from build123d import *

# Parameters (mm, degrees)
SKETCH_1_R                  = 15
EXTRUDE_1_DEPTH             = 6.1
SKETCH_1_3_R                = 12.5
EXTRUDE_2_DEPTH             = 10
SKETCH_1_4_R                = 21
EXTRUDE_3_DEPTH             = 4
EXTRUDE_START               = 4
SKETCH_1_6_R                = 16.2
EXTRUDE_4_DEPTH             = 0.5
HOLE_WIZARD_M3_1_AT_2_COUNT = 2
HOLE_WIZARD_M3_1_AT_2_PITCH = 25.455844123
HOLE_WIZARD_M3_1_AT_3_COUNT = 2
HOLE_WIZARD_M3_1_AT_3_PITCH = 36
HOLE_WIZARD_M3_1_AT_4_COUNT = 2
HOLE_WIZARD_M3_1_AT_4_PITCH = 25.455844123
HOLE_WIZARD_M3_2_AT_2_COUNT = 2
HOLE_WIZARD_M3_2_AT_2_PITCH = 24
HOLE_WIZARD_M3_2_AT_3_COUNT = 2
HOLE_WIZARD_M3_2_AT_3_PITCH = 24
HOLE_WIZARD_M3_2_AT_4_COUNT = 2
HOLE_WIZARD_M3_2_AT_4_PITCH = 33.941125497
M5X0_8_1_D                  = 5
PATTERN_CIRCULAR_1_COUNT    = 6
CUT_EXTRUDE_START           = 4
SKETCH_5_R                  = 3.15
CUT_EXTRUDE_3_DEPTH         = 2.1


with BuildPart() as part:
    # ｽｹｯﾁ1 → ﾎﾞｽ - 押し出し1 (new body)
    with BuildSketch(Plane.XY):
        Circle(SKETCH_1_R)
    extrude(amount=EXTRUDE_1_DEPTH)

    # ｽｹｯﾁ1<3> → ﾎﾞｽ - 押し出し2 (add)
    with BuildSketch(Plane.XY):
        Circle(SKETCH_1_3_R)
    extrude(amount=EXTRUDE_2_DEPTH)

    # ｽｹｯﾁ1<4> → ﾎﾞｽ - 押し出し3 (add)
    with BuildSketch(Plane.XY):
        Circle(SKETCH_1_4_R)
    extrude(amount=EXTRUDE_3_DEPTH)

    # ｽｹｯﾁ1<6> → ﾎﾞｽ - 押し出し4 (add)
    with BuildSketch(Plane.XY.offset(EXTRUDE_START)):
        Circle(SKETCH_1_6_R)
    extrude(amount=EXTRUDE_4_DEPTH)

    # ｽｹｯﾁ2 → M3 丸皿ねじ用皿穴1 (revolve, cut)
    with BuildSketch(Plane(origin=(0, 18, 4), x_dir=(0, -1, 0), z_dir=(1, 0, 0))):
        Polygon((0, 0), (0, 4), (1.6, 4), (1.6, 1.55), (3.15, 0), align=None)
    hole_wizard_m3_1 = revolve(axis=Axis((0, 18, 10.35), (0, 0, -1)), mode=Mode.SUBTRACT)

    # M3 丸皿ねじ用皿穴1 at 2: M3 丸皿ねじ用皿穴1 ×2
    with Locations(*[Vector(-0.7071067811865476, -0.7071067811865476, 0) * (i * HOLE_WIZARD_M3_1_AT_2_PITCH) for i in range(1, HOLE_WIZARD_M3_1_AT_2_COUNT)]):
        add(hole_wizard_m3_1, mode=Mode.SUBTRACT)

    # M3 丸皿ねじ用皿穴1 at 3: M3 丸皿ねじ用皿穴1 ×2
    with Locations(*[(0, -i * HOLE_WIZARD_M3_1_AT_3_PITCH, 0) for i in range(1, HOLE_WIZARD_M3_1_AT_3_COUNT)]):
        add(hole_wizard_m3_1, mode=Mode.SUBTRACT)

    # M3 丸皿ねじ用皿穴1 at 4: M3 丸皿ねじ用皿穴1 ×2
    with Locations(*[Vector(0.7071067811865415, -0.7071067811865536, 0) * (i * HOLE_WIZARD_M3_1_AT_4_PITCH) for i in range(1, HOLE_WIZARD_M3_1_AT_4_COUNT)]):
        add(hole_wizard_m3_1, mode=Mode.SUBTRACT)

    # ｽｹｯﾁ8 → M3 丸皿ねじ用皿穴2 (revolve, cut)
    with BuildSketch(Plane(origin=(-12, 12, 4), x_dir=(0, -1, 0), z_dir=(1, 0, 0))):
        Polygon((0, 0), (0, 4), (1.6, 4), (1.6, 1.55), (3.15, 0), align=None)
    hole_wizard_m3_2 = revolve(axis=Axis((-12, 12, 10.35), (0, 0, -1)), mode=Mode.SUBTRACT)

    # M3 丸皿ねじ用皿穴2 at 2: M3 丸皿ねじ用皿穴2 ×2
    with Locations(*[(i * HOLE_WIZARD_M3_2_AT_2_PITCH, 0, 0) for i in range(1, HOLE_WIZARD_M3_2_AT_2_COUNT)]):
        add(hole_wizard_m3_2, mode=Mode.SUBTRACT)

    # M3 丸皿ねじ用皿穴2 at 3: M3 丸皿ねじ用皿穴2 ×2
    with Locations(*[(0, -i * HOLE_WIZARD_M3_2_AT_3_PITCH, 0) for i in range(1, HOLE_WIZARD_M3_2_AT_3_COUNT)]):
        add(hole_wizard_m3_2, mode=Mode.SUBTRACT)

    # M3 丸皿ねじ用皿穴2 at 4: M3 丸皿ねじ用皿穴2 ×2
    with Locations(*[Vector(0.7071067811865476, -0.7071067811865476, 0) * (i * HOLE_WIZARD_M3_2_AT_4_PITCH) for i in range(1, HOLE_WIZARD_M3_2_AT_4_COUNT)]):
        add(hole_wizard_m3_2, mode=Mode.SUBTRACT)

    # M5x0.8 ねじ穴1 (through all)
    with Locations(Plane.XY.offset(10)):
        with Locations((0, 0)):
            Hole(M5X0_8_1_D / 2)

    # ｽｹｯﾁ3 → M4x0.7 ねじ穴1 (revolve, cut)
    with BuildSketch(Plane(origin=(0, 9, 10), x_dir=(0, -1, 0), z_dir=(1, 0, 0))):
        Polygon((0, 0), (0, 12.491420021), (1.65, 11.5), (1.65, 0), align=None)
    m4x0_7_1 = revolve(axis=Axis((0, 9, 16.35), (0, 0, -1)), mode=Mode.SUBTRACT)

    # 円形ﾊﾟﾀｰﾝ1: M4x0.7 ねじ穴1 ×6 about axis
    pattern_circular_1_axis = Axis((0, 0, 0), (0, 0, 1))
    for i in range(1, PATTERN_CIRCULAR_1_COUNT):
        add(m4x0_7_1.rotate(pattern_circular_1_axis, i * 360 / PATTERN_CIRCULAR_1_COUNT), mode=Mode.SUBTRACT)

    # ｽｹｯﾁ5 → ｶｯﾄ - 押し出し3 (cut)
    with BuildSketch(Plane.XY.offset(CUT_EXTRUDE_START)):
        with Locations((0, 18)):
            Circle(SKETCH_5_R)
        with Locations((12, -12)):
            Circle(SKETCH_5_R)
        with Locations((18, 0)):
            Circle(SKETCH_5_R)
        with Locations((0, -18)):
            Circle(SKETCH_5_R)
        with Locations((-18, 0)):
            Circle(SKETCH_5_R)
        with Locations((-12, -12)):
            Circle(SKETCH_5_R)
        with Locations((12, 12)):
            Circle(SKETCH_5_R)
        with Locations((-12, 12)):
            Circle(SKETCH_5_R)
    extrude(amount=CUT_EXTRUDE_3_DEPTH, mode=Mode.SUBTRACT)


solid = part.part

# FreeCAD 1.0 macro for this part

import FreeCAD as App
import Part
import Sketcher
from FreeCAD import Vector
Q = App.Units.Quantity

doc = App.newDocument("Part")
body = doc.addObject("PartDesign::Body", "Body")

# Sketch on XY plane
sketch1 = doc.addObject("Sketcher::SketchObject", "Sketch")
body.addObject(sketch1)
sketch1.AttachmentSupport = (doc.XY_Plane, [""])
sketch1.MapMode = "FlatFace"
sketch1.addGeometry(Part.Circle(Vector(0, 0, 0), Vector(0, 0, 1), 15), False)
sketch1.addConstraint([
    Sketcher.Constraint("Coincident", 0, 3, -1, 1),
    Sketcher.Constraint("Diameter", 0, Q("30 mm")),
])
pad1 = doc.addObject("PartDesign::Pad", "Pad")
body.addObject(pad1)
pad1.Profile = sketch1
pad1.Length = 6.1

# Sketch on XY plane
sketch2 = doc.addObject("Sketcher::SketchObject", "Sketch001")
body.addObject(sketch2)
sketch2.AttachmentSupport = (doc.XY_Plane, [""])
sketch2.MapMode = "FlatFace"
sketch2.addGeometry(Part.Circle(Vector(0, 0, 0), Vector(0, 0, 1), 12), False)
sketch2.addConstraint([
    Sketcher.Constraint("Coincident", 0, 3, -1, 1),
    Sketcher.Constraint("Diameter", 0, Q("25 mm")),
])
pad2 = doc.addObject("PartDesign::Pad", "Pad001")
body.addObject(pad2)
pad2.Profile = sketch2
pad2.Length = 10

# Sketch on XY plane
sketch3 = doc.addObject("Sketcher::SketchObject", "Sketch002")
body.addObject(sketch3)
sketch3.AttachmentSupport = (doc.XY_Plane, [""])
sketch3.MapMode = "FlatFace"
sketch3.addGeometry(Part.Circle(Vector(0, 0, 0), Vector(0, 0, 1), 21), False)
sketch3.addConstraint([
    Sketcher.Constraint("Coincident", 0, 3, -1, 1),
    Sketcher.Constraint("Diameter", 0, Q("42 mm")),
])
pad3 = doc.addObject("PartDesign::Pad", "Pad002")
body.addObject(pad3)
pad3.Profile = sketch3
pad3.Length = 4

# Sketch on XY plane
sketch4 = doc.addObject("Sketcher::SketchObject", "Sketch003")
body.addObject(sketch4)
sketch4.AttachmentSupport = (doc.XY_Plane, [""])
sketch4.MapMode = "FlatFace"
sketch4.AttachmentOffset = App.Placement(Vector(0, 0, 4), App.Rotation())
sketch4.addGeometry(Part.Circle(Vector(0, 0, 0), Vector(0, 0, 1), 16), False)
sketch4.addConstraint([
    Sketcher.Constraint("Coincident", 0, 3, -1, 1),
    Sketcher.Constraint("Diameter", 0, Q("32.4 mm")),
])
pad4 = doc.addObject("PartDesign::Pad", "Pad003")
body.addObject(pad4)
pad4.Profile = sketch4
pad4.Length = 0.5

# Sketch on YZ plane
sketch5 = doc.addObject("Sketcher::SketchObject", "Sketch004")
body.addObject(sketch5)
sketch5.AttachmentSupport = (doc.YZ_Plane, [""])
sketch5.MapMode = "FlatFace"
sketch5.addGeometry([
    Part.LineSegment(Vector(18, 0, 0), Vector(18, 4, 0)),  # 0
    Part.LineSegment(Vector(18, 4, 0), Vector(14.8, 4, 0)),  # 1
    Part.LineSegment(Vector(14.8, 4, 0), Vector(16.4, 2.5, 0)),  # 2
    Part.LineSegment(Vector(16.4, 2.5, 0), Vector(16.4, 0, 0)),  # 3
    Part.LineSegment(Vector(16.4, 0, 0), Vector(18, 0, 0)),  # 4
], False)
sketch5.addGeometry(Part.LineSegment(Vector(18, 4, 0), Vector(18, 0, 0)), True)  # axis
sketch5.addConstraint([
    Sketcher.Constraint("Coincident", 0, 2, 1, 1),
    Sketcher.Constraint("Coincident", 1, 2, 2, 1),
    Sketcher.Constraint("Coincident", 2, 2, 3, 1),
    Sketcher.Constraint("Coincident", 3, 2, 4, 1),
    Sketcher.Constraint("Coincident", 4, 2, 0, 1),
    Sketcher.Constraint("Vertical", 0),
    Sketcher.Constraint("Horizontal", 1),
    Sketcher.Constraint("Vertical", 3),
    Sketcher.Constraint("Horizontal", 4),
    Sketcher.Constraint("Vertical", 5),
    Sketcher.Constraint("Coincident", 5, 1, 0, 2),
    Sketcher.Constraint("PointOnObject", 3, 2, -1),
    Sketcher.Constraint("PointOnObject", 5, 2, -1),
    Sketcher.Constraint("DistanceY", 0, 1, 0, 2, Q("4 mm")),
    Sketcher.Constraint("Angle", 2, Q("-45 deg")),
    Sketcher.Constraint("DistanceX", 4, 1, 4, 2, Q("1.6 mm")),
    Sketcher.Constraint("DistanceX", -1, 1, 0, 2, Q("18 mm")),
    Sketcher.Constraint("DistanceX", 1, 2, 1, 1, Q("3.15 mm")),
])
groove = doc.addObject("PartDesign::Groove", "Groove")
body.addObject(groove)
groove.Profile = sketch5
groove.ReferenceAxis = (sketch5, ["Axis0"])
groove.Angle = 360
doc.recompute()

datumline = doc.addObject("PartDesign::Line", "DatumLine")
body.addObject(datumline)
datumline.Placement = App.Placement(Vector(0, 0, 0), App.Rotation(Vector(0, 0, 1), Vector(-0.707106781, -0.707106781, 0)))
linearpattern = doc.addObject("PartDesign::LinearPattern", "LinearPattern")
body.addObject(linearpattern)
linearpattern.Originals = [groove]
linearpattern.Direction = (datumline, [""])
linearpattern.Mode = "offset"
linearpattern.Offset = 25.455844
linearpattern.Occurrences = 2
body.Tip = linearpattern
doc.recompute()

linearpattern2 = doc.addObject("PartDesign::LinearPattern", "LinearPattern001")
body.addObject(linearpattern2)
linearpattern2.Originals = [groove]
linearpattern2.Direction = (doc.Y_Axis, [""])
linearpattern2.Mode = "offset"
linearpattern2.Offset = 36
linearpattern2.Occurrences = 2
linearpattern2.Reversed = True
body.Tip = linearpattern2
doc.recompute()

datumline2 = doc.addObject("PartDesign::Line", "DatumLine001")
body.addObject(datumline2)
datumline2.Placement = App.Placement(Vector(0, 0, 0), App.Rotation(Vector(0, 0, 1), Vector(0.707106781, -0.707106781, 0)))
linearpattern3 = doc.addObject("PartDesign::LinearPattern", "LinearPattern002")
body.addObject(linearpattern3)
linearpattern3.Originals = [groove]
linearpattern3.Direction = (datumline2, [""])
linearpattern3.Mode = "offset"
linearpattern3.Offset = 25.455844
linearpattern3.Occurrences = 2
body.Tip = linearpattern3

# Sketch on YZ plane
sketch6 = doc.addObject("Sketcher::SketchObject", "Sketch005")
body.addObject(sketch6)
sketch6.AttachmentSupport = (doc.YZ_Plane, [""])
sketch6.MapMode = "FlatFace"
sketch6.AttachmentOffset = App.Placement(Vector(0, 0, -12), App.Rotation())
sketch6.addGeometry([
    Part.LineSegment(Vector(12, 0, 0), Vector(12, 4, 0)),  # 0
    Part.LineSegment(Vector(12, 4, 0), Vector(8.8, 4, 0)),  # 1
    Part.LineSegment(Vector(8.8, 4, 0), Vector(10.4, 2.5, 0)),  # 2
    Part.LineSegment(Vector(10.4, 2.5, 0), Vector(10.4, 0, 0)),  # 3
    Part.LineSegment(Vector(10.4, 0, 0), Vector(12, 0, 0)),  # 4
], False)
sketch6.addGeometry(Part.LineSegment(Vector(12, 4, 0), Vector(12, 0, 0)), True)  # axis
sketch6.addConstraint([
    Sketcher.Constraint("Coincident", 0, 2, 1, 1),
    Sketcher.Constraint("Coincident", 1, 2, 2, 1),
    Sketcher.Constraint("Coincident", 2, 2, 3, 1),
    Sketcher.Constraint("Coincident", 3, 2, 4, 1),
    Sketcher.Constraint("Coincident", 4, 2, 0, 1),
    Sketcher.Constraint("Vertical", 0),
    Sketcher.Constraint("Horizontal", 1),
    Sketcher.Constraint("Vertical", 3),
    Sketcher.Constraint("Horizontal", 4),
    Sketcher.Constraint("Vertical", 5),
    Sketcher.Constraint("Coincident", 5, 1, 0, 2),
    Sketcher.Constraint("PointOnObject", 3, 2, -1),
    Sketcher.Constraint("PointOnObject", 5, 2, -1),
    Sketcher.Constraint("DistanceY", 0, 1, 0, 2, Q("4 mm")),
    Sketcher.Constraint("Angle", 2, Q("-45 deg")),
    Sketcher.Constraint("DistanceX", 4, 1, 4, 2, Q("1.6 mm")),
    Sketcher.Constraint("DistanceX", -1, 1, 0, 2, Q("12 mm")),
    Sketcher.Constraint("DistanceX", 1, 2, 1, 1, Q("3.15 mm")),
])
groove2 = doc.addObject("PartDesign::Groove", "Groove001")
body.addObject(groove2)
groove2.Profile = sketch6
groove2.ReferenceAxis = (sketch6, ["Axis0"])
groove2.Angle = 360
doc.recompute()

linearpattern4 = doc.addObject("PartDesign::LinearPattern", "LinearPattern003")
body.addObject(linearpattern4)
linearpattern4.Originals = [groove2]
linearpattern4.Direction = (doc.X_Axis, [""])
linearpattern4.Mode = "offset"
linearpattern4.Offset = 24
linearpattern4.Occurrences = 2
body.Tip = linearpattern4
doc.recompute()

linearpattern5 = doc.addObject("PartDesign::LinearPattern", "LinearPattern004")
body.addObject(linearpattern5)
linearpattern5.Originals = [groove2]
linearpattern5.Direction = (doc.Y_Axis, [""])
linearpattern5.Mode = "offset"
linearpattern5.Offset = 24
linearpattern5.Occurrences = 2
linearpattern5.Reversed = True
body.Tip = linearpattern5
doc.recompute()

datumline3 = doc.addObject("PartDesign::Line", "DatumLine002")
body.addObject(datumline3)
datumline3.Placement = App.Placement(Vector(0, 0, 0), App.Rotation(Vector(0, 0, 1), Vector(0.707106781, -0.707106781, 0)))
linearpattern6 = doc.addObject("PartDesign::LinearPattern", "LinearPattern005")
body.addObject(linearpattern6)
linearpattern6.Originals = [groove2]
linearpattern6.Direction = (datumline3, [""])
linearpattern6.Mode = "offset"
linearpattern6.Offset = 33.941125
linearpattern6.Occurrences = 2
body.Tip = linearpattern6

# Sketch on XY plane
sketch7 = doc.addObject("Sketcher::SketchObject", "Sketch006")
body.addObject(sketch7)
sketch7.AttachmentSupport = (doc.XY_Plane, [""])
sketch7.MapMode = "FlatFace"
sketch7.AttachmentOffset = App.Placement(Vector(0, 0, 10), App.Rotation())
sketch7.addGeometry(Part.Circle(Vector(0, 0, 0), Vector(0, 0, 1), 2.5), False)
sketch7.addConstraint([
    Sketcher.Constraint("Coincident", 0, 3, -1, 1),
    Sketcher.Constraint("Diameter", 0, Q("5 mm")),
])
doc.recompute()
hole = doc.addObject("PartDesign::Hole", "Hole")
body.addObject(hole)
hole.Profile = sketch7
hole.ThreadType = "None"
hole.Diameter = 5
hole.DepthType = "ThroughAll"

# Sketch on YZ plane
sketch8 = doc.addObject("Sketcher::SketchObject", "Sketch007")
body.addObject(sketch8)
sketch8.AttachmentSupport = (doc.YZ_Plane, [""])
sketch8.MapMode = "FlatFace"
sketch8.addGeometry([
    Part.LineSegment(Vector(9, -2.5, 0), Vector(9, 10, 0)),
    Part.LineSegment(Vector(9, 10, 0), Vector(7.3, 10, 0)),
    Part.LineSegment(Vector(7.3, 10, 0), Vector(7.3, -1.5, 0)),
    Part.LineSegment(Vector(7.3, -1.5, 0), Vector(9, -2.5, 0)),
], False)
sketch8.addGeometry(Part.LineSegment(Vector(9, 10, 0), Vector(9, -2.5, 0)), True)  # axis
sketch8.addConstraint([
    Sketcher.Constraint("Coincident", 0, 2, 1, 1),
    Sketcher.Constraint("Coincident", 1, 2, 2, 1),
    Sketcher.Constraint("Coincident", 2, 2, 3, 1),
    Sketcher.Constraint("Coincident", 3, 2, 0, 1),
    Sketcher.Constraint("Vertical", 0),
    Sketcher.Constraint("Horizontal", 1),
    Sketcher.Constraint("Vertical", 2),
    Sketcher.Constraint("Vertical", 4),
    Sketcher.Constraint("Coincident", 4, 1, 0, 2),
    Sketcher.Constraint("Equal", 0, 4),
    Sketcher.Constraint("Angle", 3, Q("-31 deg")),
    Sketcher.Constraint("DistanceY", 2, 2, 2, 1, Q("11.5 mm")),
    Sketcher.Constraint("DistanceX", -1, 1, 0, 2, Q("9 mm")),
    Sketcher.Constraint("DistanceY", -1, 1, 0, 2, Q("10 mm")),
    Sketcher.Constraint("DistanceX", 1, 2, 1, 1, Q("1.65 mm")),
])
groove3 = doc.addObject("PartDesign::Groove", "Groove002")
body.addObject(groove3)
groove3.Profile = sketch8
groove3.ReferenceAxis = (sketch8, ["Axis0"])
groove3.Angle = 360
doc.recompute()

polarpattern = doc.addObject("PartDesign::PolarPattern", "PolarPattern")
body.addObject(polarpattern)
polarpattern.Originals = [groove3]
polarpattern.Axis = (doc.Z_Axis, [""])
polarpattern.Angle = 360
polarpattern.Occurrences = 6
body.Tip = polarpattern

# Sketch on XY plane
sketch9 = doc.addObject("Sketcher::SketchObject", "Sketch008")
body.addObject(sketch9)
sketch9.AttachmentSupport = (doc.XY_Plane, [""])
sketch9.MapMode = "FlatFace"
sketch9.AttachmentOffset = App.Placement(Vector(0, 0, 4), App.Rotation())
sketch9.addGeometry([
    Part.Circle(Vector(0, 18, 0), Vector(0, 0, 1), 3.1),  # 0
    Part.Circle(Vector(12, -12, 0), Vector(0, 0, 1), 3.1),  # 1
    Part.Circle(Vector(18, 0, 0), Vector(0, 0, 1), 3.1),  # 2
    Part.Circle(Vector(0, -18, 0), Vector(0, 0, 1), 3.1),  # 3
    Part.Circle(Vector(-18, 0, 0), Vector(0, 0, 1), 3.1),  # 4
    Part.Circle(Vector(-12, -12, 0), Vector(0, 0, 1), 3.1),  # 5
    Part.Circle(Vector(12, 12, 0), Vector(0, 0, 1), 3.1),  # 6
    Part.Circle(Vector(-12, 12, 0), Vector(0, 0, 1), 3.1),  # 7
], False)
sketch9.addConstraint([
    Sketcher.Constraint("Equal", 0, 1),
    Sketcher.Constraint("Equal", 1, 2),
    Sketcher.Constraint("Equal", 2, 3),
    Sketcher.Constraint("Equal", 3, 4),
    Sketcher.Constraint("Equal", 4, 5),
    Sketcher.Constraint("Equal", 5, 6),
    Sketcher.Constraint("Equal", 6, 7),
    Sketcher.Constraint("Symmetric", 0, 3, 3, 3, -1, 1),
    Sketcher.Constraint("Symmetric", 2, 3, 4, 3, -1, 1),
    Sketcher.Constraint("Symmetric", 5, 3, 6, 3, -1, 1),
    Sketcher.Constraint("Symmetric", 1, 3, 7, 3, -1, 1),
    Sketcher.Constraint("Symmetric", 1, 3, 5, 3, -2),
    Sketcher.Constraint("PointOnObject", 0, 3, -2),
    Sketcher.Constraint("PointOnObject", 2, 3, -1),
    Sketcher.Constraint("Diameter", 0, Q("6.3 mm")),
    Sketcher.Constraint("DistanceY", -1, 1, 0, 3, Q("18 mm")),
    Sketcher.Constraint("DistanceX", -1, 1, 1, 3, Q("12 mm")),
    Sketcher.Constraint("DistanceY", 1, 3, -1, 1, Q("12 mm")),
    Sketcher.Constraint("DistanceX", -1, 1, 2, 3, Q("18 mm")),
])
pocket1 = doc.addObject("PartDesign::Pocket", "Pocket")
body.addObject(pocket1)
pocket1.Profile = sketch9
pocket1.Length = 2.1
pocket1.Reversed = True

doc.recompute()
